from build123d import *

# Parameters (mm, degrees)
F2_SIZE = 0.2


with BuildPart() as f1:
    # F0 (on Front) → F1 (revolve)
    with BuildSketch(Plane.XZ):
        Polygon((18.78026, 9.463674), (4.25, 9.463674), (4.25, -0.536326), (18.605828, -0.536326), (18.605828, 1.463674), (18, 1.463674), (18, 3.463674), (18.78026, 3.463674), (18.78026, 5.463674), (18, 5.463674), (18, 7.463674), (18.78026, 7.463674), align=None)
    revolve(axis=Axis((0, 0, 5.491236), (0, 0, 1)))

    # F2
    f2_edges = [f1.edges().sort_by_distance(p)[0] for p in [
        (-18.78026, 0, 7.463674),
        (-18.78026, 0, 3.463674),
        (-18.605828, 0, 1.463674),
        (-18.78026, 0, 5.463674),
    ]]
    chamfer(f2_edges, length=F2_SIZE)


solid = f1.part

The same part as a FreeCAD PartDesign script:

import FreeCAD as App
import Part
import Sketcher


def edges_at(feature, points):
    """Names of the edges that pass closest to the given points."""
    edges = feature.Shape.Edges
    near = lambda p: min(range(len(edges)), key=lambda i: edges[i].distToShape(Part.Vertex(*p))[0])
    return sorted({f"Edge{near(p) + 1}" for p in points})

doc = App.newDocument("Part")
body = doc.addObject("PartDesign::Body", "Body")

sketch1 = body.newObject("Sketcher::SketchObject", "Sketch")
sketch1.AttachmentSupport = (doc.getObject("XZ_Plane"), [""])
sketch1.MapMode = "FlatFace"
sketch1.addGeometry([
    Part.LineSegment(App.Vector(18.78026, 9.463674, 0), App.Vector(4.25, 9.463674, 0)),
    Part.LineSegment(App.Vector(4.25, 9.463674, 0), App.Vector(4.25, -0.536326, 0)),
    Part.LineSegment(App.Vector(4.25, -0.536326, 0), App.Vector(18.605828, -0.536326, 0)),
    Part.LineSegment(App.Vector(18.605828, -0.536326, 0), App.Vector(18.605828, 1.463674, 0)),
    Part.LineSegment(App.Vector(18.605828, 1.463674, 0), App.Vector(18, 1.463674, 0)),
    Part.LineSegment(App.Vector(18, 1.463674, 0), App.Vector(18, 3.463674, 0)),
    Part.LineSegment(App.Vector(18, 3.463674, 0), App.Vector(18.78026, 3.463674, 0)),
    Part.LineSegment(App.Vector(18.78026, 3.463674, 0), App.Vector(18.78026, 5.463674, 0)),
    Part.LineSegment(App.Vector(18.78026, 5.463674, 0), App.Vector(18, 5.463674, 0)),
    Part.LineSegment(App.Vector(18, 5.463674, 0), App.Vector(18, 7.463674, 0)),
    Part.LineSegment(App.Vector(18, 7.463674, 0), App.Vector(18.78026, 7.463674, 0)),
    Part.LineSegment(App.Vector(18.78026, 7.463674, 0), App.Vector(18.78026, 9.463674, 0)),
], False)
sketch1.addConstraint([
    Sketcher.Constraint("Coincident", 0, 2, 1, 1),
    Sketcher.Constraint("Coincident", 1, 2, 2, 1),
    Sketcher.Constraint("Coincident", 2, 2, 3, 1),
    Sketcher.Constraint("Coincident", 3, 2, 4, 1),
    Sketcher.Constraint("Coincident", 4, 2, 5, 1),
    Sketcher.Constraint("Coincident", 5, 2, 6, 1),
    Sketcher.Constraint("Coincident", 6, 2, 7, 1),
    Sketcher.Constraint("Coincident", 7, 2, 8, 1),
    Sketcher.Constraint("Coincident", 8, 2, 9, 1),
    Sketcher.Constraint("Coincident", 9, 2, 10, 1),
    Sketcher.Constraint("Coincident", 10, 2, 11, 1),
    Sketcher.Constraint("Coincident", 11, 2, 0, 1),
    Sketcher.Constraint("Horizontal", 0),
    Sketcher.Constraint("Vertical", 1),
    Sketcher.Constraint("Horizontal", 2),
    Sketcher.Constraint("Vertical", 3),
    Sketcher.Constraint("Horizontal", 4),
    Sketcher.Constraint("Vertical", 5),
    Sketcher.Constraint("Horizontal", 6),
    Sketcher.Constraint("Vertical", 7),
    Sketcher.Constraint("Horizontal", 8),
    Sketcher.Constraint("Vertical", 9),
    Sketcher.Constraint("Horizontal", 10),
    Sketcher.Constraint("Vertical", 11),
    Sketcher.Constraint("Vertical", 5, 2, 8, 2),
    Sketcher.Constraint("Vertical", 7, 2, 10, 2),
    Sketcher.Constraint("Equal", 3, 5),
    Sketcher.Constraint("Equal", 5, 7),
    Sketcher.Constraint("Equal", 7, 9),
    Sketcher.Constraint("Equal", 9, 11),
    Sketcher.Constraint("DistanceY", 1, 2, 1, 1, 10.0),
    Sketcher.Constraint("DistanceX", -1, 1, 4, 2, 18.0),
    Sketcher.Constraint("DistanceX", -1, 1, 0, 2, 4.25),
    Sketcher.Constraint("DistanceX", 0, 2, 0, 1, 14.53026),
    Sketcher.Constraint("DistanceX", 2, 1, 2, 2, 14.355828),
    Sketcher.Constraint("DistanceY", -1, 1, 0, 2, 9.463674),
])
revolution = body.newObject("PartDesign::Revolution", "Revolution")
revolution.Profile = sketch1
revolution.ReferenceAxis = (sketch1, ["V_Axis"])
revolution.Angle = 360
doc.recompute()

chamfer = body.newObject("PartDesign::Chamfer", "Chamfer")
chamfer.Base = (revolution, edges_at(revolution, [
    (-18.78, 0, 7.464),
    (-18.78, 0, 3.464),
    (-18.606, 0, 1.464),
    (-18.78, 0, 5.464),
]))
chamfer.Size = 0.2

doc.recompute()
